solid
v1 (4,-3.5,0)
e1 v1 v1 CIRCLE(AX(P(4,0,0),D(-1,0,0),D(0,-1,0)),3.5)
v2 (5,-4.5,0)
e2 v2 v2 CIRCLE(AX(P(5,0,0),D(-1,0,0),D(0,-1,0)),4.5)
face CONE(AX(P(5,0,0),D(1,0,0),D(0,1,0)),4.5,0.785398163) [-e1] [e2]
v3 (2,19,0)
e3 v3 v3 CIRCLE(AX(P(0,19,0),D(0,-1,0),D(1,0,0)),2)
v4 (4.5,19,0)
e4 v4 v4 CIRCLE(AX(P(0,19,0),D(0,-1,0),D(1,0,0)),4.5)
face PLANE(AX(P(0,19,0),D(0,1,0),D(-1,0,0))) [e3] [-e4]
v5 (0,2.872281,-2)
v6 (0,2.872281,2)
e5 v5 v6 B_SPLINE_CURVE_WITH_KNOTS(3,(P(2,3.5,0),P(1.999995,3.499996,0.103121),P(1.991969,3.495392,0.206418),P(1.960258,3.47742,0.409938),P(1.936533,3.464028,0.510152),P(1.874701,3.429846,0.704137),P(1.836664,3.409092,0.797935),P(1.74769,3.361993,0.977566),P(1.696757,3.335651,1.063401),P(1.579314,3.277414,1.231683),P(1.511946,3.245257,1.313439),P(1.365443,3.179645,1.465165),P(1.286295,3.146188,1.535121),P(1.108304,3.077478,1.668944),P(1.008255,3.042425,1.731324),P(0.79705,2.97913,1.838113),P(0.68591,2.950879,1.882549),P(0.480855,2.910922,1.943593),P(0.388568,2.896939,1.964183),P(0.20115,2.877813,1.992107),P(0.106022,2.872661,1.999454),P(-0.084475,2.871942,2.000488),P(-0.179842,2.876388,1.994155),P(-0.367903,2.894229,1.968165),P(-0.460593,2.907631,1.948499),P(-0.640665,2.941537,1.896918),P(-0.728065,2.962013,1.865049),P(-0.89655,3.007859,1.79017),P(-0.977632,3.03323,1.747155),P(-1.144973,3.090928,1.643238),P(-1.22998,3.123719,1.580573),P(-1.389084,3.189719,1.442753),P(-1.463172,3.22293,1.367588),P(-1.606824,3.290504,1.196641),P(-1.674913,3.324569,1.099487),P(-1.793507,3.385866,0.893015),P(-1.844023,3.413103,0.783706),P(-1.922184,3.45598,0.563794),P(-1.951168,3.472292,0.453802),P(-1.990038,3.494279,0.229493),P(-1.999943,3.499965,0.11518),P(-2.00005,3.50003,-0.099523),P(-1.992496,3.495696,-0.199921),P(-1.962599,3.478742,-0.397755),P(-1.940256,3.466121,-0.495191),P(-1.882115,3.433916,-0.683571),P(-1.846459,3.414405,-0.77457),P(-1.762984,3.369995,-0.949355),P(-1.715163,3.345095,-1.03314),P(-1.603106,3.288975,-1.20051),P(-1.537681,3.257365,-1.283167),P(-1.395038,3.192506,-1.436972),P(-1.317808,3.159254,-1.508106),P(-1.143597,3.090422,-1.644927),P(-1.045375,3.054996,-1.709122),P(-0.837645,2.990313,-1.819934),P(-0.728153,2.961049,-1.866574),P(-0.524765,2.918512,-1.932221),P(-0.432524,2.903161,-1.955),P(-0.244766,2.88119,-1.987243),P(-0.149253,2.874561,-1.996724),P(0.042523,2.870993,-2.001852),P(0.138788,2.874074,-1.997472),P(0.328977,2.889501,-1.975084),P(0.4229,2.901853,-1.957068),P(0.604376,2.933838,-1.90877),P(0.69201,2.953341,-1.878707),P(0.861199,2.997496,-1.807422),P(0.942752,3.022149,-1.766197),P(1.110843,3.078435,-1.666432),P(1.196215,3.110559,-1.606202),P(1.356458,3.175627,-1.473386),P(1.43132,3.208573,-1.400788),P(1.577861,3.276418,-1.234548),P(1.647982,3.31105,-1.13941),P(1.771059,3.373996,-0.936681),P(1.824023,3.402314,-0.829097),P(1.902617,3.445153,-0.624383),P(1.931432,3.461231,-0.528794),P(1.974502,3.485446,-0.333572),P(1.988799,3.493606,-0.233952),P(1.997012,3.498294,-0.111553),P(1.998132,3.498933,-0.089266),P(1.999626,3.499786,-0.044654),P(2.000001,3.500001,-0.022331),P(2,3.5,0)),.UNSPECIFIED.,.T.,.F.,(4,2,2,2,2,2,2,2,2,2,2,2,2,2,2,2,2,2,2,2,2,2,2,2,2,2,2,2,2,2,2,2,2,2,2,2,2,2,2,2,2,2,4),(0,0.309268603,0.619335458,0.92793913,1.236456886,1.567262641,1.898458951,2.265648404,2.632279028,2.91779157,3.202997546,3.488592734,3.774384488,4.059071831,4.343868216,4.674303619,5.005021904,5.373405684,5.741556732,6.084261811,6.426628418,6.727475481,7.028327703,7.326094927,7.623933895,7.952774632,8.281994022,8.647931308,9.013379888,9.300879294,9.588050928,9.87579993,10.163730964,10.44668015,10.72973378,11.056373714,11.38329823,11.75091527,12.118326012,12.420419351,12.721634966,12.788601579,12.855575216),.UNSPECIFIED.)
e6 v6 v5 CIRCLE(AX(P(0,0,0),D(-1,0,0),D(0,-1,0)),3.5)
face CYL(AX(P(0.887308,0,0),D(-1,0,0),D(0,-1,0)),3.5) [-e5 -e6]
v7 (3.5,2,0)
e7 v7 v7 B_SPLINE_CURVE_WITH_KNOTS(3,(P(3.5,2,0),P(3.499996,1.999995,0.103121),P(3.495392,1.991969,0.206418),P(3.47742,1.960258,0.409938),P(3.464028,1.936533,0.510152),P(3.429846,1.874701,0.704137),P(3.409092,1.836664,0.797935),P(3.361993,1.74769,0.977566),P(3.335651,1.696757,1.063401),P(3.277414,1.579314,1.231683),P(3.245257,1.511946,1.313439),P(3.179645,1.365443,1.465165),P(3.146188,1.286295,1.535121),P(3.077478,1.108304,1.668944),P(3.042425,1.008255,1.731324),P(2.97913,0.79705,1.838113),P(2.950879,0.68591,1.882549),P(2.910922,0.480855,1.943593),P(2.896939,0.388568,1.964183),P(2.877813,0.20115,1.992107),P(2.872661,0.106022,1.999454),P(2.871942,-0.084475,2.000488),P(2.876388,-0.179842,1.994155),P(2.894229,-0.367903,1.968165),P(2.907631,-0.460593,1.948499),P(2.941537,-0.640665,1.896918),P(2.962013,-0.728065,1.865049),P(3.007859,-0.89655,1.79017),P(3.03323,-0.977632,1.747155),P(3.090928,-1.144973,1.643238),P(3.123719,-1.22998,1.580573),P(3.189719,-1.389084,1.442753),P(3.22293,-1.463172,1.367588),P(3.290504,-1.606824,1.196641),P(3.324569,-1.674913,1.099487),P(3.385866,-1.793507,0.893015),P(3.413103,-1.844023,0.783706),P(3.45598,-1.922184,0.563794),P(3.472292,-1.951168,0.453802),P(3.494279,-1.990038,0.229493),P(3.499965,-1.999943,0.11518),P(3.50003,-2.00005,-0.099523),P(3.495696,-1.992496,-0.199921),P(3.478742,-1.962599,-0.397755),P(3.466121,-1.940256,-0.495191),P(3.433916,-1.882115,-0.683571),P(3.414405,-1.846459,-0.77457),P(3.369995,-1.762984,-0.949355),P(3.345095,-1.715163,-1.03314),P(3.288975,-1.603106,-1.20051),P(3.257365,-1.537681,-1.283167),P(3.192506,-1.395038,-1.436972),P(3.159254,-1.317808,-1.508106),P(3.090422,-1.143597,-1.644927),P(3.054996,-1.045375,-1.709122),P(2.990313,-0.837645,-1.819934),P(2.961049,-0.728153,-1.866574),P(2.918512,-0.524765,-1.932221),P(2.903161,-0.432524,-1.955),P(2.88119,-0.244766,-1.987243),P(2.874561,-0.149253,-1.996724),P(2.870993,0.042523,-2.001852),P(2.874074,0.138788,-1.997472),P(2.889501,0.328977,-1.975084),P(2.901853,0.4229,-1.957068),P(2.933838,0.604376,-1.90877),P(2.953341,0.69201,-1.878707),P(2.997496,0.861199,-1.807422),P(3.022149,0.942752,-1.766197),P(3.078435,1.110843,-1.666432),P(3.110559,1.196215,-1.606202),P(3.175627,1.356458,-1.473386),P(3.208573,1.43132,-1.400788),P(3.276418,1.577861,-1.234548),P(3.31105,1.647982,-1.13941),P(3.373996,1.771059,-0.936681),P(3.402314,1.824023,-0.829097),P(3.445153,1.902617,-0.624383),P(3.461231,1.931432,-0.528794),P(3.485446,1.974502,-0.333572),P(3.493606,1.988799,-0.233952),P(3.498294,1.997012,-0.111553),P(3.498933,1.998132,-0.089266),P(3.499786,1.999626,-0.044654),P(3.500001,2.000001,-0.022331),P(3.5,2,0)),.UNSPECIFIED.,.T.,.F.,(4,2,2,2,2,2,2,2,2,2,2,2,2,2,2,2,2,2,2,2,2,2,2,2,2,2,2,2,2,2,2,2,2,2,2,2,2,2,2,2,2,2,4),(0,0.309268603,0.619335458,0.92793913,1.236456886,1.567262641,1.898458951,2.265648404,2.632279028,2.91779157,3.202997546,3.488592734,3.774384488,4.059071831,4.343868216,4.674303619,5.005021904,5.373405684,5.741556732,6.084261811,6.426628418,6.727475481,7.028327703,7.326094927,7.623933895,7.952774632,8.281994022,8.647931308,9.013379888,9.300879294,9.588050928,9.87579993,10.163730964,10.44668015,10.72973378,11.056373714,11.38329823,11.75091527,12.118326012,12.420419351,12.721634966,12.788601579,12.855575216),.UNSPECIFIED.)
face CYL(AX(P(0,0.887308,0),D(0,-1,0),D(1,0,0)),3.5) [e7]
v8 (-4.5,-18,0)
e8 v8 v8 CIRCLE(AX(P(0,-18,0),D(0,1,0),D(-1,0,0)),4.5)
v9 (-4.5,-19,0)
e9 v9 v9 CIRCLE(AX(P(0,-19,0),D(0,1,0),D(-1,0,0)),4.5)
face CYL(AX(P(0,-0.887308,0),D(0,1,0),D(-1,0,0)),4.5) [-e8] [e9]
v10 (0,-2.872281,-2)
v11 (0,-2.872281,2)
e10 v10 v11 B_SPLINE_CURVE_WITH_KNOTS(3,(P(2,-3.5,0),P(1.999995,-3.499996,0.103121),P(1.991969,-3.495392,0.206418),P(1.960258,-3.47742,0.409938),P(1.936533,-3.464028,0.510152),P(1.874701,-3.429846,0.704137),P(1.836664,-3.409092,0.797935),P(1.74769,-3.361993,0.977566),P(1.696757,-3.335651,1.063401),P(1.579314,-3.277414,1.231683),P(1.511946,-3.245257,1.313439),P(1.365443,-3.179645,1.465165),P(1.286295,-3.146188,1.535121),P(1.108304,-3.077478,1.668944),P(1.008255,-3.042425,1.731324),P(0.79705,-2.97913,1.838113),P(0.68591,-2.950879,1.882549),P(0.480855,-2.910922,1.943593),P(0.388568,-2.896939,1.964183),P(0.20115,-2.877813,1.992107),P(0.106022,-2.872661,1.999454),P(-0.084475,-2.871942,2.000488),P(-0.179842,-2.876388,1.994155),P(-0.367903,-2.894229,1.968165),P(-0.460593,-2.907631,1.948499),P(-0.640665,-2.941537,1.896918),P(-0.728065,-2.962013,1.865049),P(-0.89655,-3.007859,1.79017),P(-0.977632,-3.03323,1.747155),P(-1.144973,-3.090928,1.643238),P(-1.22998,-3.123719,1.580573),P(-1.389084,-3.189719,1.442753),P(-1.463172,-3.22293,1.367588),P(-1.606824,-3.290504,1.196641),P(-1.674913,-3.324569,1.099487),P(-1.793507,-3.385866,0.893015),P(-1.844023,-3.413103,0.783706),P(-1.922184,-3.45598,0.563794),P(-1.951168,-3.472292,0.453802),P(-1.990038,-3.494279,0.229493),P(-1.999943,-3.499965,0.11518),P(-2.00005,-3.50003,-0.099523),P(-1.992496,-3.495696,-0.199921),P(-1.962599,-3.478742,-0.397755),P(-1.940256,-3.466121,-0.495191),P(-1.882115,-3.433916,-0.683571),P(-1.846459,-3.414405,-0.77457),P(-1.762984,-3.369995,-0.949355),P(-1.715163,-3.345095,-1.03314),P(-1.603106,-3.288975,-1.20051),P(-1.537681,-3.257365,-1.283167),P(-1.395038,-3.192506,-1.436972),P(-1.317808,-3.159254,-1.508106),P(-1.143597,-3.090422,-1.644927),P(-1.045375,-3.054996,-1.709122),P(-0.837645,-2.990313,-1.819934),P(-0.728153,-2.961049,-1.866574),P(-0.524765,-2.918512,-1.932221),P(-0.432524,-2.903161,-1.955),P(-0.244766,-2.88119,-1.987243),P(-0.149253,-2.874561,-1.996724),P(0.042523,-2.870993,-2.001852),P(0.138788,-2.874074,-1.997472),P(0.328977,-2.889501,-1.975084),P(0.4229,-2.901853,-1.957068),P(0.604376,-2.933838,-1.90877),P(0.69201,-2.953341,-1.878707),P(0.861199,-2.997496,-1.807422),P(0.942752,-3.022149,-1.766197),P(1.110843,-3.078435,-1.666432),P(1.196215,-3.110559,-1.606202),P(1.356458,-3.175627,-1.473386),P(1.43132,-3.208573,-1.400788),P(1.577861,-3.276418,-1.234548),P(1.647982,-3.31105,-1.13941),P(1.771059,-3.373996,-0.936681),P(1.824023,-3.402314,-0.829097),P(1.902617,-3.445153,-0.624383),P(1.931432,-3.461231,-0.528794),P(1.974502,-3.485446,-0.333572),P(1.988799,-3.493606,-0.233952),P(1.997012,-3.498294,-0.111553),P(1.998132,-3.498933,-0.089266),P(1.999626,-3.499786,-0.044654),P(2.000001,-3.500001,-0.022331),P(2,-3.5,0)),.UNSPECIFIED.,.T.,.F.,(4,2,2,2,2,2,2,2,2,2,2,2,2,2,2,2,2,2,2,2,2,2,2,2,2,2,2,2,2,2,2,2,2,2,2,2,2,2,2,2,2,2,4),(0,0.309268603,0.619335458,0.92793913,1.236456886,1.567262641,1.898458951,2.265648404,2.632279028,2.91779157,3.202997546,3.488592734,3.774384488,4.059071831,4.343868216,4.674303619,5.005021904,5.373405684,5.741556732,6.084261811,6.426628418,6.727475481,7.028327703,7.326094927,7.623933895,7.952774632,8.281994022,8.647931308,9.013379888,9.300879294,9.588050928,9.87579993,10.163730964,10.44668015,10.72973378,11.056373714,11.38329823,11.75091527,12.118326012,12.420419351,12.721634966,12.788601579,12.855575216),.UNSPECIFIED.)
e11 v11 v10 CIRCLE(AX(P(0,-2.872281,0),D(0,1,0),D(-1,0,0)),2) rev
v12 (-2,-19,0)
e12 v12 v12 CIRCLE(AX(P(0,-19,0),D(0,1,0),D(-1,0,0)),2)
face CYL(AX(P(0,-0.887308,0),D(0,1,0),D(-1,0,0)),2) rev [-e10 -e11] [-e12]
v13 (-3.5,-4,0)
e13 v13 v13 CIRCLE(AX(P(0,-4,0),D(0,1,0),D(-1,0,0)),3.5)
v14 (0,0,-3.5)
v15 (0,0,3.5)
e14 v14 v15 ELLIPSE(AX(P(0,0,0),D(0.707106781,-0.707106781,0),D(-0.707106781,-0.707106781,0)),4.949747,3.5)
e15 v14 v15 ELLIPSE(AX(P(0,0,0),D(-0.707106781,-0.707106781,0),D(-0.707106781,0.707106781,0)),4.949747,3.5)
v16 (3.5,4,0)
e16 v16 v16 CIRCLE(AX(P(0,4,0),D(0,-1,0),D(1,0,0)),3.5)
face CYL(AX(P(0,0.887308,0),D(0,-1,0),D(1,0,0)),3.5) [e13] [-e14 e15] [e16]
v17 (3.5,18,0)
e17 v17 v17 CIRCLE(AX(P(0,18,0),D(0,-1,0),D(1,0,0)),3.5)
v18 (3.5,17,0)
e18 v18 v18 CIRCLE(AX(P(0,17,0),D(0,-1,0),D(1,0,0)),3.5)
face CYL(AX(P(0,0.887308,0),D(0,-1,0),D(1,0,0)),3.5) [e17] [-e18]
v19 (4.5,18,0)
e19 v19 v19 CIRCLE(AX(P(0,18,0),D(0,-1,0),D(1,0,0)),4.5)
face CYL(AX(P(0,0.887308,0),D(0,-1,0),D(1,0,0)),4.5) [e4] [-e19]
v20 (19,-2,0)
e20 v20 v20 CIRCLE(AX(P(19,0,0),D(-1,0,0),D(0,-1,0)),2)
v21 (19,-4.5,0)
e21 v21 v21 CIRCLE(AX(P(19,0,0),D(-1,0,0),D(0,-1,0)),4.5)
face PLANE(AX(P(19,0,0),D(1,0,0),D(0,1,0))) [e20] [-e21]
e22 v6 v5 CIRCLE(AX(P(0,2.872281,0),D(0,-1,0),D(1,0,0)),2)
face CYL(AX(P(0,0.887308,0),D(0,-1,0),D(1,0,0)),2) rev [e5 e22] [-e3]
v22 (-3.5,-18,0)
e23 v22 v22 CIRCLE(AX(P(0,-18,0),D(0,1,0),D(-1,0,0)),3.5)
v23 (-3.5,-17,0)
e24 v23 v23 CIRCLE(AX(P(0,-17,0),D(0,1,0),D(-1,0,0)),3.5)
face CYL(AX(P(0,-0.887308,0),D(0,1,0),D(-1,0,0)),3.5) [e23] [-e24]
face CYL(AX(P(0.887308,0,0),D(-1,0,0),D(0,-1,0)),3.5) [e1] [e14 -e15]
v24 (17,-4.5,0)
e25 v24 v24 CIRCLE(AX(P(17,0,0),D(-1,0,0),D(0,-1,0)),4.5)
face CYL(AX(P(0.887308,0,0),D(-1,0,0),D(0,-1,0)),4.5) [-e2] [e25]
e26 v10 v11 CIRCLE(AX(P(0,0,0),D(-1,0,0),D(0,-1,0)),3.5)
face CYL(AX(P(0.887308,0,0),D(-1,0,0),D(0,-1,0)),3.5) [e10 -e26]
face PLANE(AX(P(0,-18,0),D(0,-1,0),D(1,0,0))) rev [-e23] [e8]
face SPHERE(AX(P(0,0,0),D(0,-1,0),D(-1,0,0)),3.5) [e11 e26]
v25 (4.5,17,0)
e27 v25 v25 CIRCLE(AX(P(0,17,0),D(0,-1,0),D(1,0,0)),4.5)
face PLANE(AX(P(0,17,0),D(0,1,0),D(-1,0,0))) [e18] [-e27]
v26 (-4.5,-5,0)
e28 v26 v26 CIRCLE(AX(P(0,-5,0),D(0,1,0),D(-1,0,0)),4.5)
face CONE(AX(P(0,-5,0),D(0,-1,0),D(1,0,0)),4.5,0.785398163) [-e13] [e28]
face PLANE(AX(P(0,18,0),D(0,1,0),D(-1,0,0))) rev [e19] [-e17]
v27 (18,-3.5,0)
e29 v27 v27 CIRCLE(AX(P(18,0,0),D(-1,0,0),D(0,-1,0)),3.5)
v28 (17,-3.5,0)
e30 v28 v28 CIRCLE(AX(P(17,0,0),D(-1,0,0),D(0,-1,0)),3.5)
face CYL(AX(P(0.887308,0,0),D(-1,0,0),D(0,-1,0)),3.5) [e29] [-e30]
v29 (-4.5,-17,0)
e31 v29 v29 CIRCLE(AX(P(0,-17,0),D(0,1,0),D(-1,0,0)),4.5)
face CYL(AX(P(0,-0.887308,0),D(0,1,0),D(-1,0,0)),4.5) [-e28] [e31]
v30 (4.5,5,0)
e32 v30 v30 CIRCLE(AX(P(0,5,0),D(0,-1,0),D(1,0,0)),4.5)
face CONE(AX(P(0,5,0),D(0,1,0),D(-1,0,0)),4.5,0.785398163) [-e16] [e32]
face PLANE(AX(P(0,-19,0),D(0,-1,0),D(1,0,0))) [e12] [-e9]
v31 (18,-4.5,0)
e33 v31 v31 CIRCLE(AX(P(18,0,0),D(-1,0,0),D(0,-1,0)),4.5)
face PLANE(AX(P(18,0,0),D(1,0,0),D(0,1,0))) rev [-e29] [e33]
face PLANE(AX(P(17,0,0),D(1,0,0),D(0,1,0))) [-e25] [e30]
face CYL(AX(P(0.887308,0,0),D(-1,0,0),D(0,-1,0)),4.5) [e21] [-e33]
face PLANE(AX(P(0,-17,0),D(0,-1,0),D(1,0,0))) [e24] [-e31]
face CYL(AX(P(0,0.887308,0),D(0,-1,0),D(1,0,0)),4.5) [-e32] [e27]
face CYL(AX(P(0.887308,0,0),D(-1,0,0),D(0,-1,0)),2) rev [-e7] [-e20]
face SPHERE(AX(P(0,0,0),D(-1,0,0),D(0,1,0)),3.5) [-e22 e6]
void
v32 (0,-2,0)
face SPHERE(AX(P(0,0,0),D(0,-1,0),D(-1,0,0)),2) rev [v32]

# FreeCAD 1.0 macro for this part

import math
import FreeCAD as App
import Part
import Sketcher

doc = App.newDocument("Part")
params = doc.addObject("Spreadsheet::Sheet", "Params")
for row, (alias, value) in enumerate([
    ("sketch1_radius", "2 mm"),
    ("sketch1_radius2", "3.5 mm"),
    ("sketch1_width", "1 mm"),
    ("sketch1_height", "19 mm"),
    ("sketch1_height2", "12 mm"),
    ("revolution_angle", "360 deg"),
], start=1):
    params.set(f"A{row}", alias)
    params.set(f"B{row}", "=" + value)
    params.setAlias(f"B{row}", alias)

body = doc.addObject("PartDesign::Body", "Body")

# Sketch on XY plane
sketch1 = doc.addObject("Sketcher::SketchObject", "Sketch")
body.addObject(sketch1)
sketch1.AttachmentSupport = (doc.XY_Plane, [""])
sketch1.MapMode = "FlatFace"
sketch1.addGeometry(Part.LineSegment(App.Vector(0, -3.5, 0), App.Vector(0, -2, 0)), False)
sketch1.addGeometry(Part.ArcOfCircle(Part.Circle(App.Vector(0, 0, 0), App.Vector(0, 0, 1), 2), math.radians(-180), math.radians(-90)), False)
sketch1.addGeometry(Part.LineSegment(App.Vector(-2, 0, 0), App.Vector(-2, 19, 0)), False)
sketch1.addGeometry(Part.LineSegment(App.Vector(-2, 19, 0), App.Vector(-4.5, 19, 0)), False)
sketch1.addGeometry(Part.LineSegment(App.Vector(-4.5, 19, 0), App.Vector(-4.5, 18, 0)), False)
sketch1.addGeometry(Part.LineSegment(App.Vector(-4.5, 18, 0), App.Vector(-3.5, 18, 0)), False)
sketch1.addGeometry(Part.LineSegment(App.Vector(-3.5, 18, 0), App.Vector(-3.5, 17, 0)), False)
sketch1.addGeometry(Part.LineSegment(App.Vector(-3.5, 17, 0), App.Vector(-4.5, 17, 0)), False)
sketch1.addGeometry(Part.LineSegment(App.Vector(-4.5, 17, 0), App.Vector(-4.5, 5, 0)), False)
sketch1.addGeometry(Part.LineSegment(App.Vector(-4.5, 5, 0), App.Vector(-3.5, 4, 0)), False)
sketch1.addGeometry(Part.LineSegment(App.Vector(-3.5, 4, 0), App.Vector(-3.5, 0, 0)), False)
sketch1.addGeometry(Part.ArcOfCircle(Part.Circle(App.Vector(0, 0, 0), App.Vector(0, 0, 1), 3.5), math.radians(-180), math.radians(-90)), False)
sketch1.addConstraint(Sketcher.Constraint("Coincident", 0, 2, 1, 2))
sketch1.addConstraint(Sketcher.Constraint("Tangent", 1, 1, 2, 1))
sketch1.addConstraint(Sketcher.Constraint("Coincident", 2, 2, 3, 1))
sketch1.addConstraint(Sketcher.Constraint("Coincident", 3, 2, 4, 1))
sketch1.addConstraint(Sketcher.Constraint("Coincident", 4, 2, 5, 1))
sketch1.addConstraint(Sketcher.Constraint("Coincident", 5, 2, 6, 1))
sketch1.addConstraint(Sketcher.Constraint("Coincident", 6, 2, 7, 1))
sketch1.addConstraint(Sketcher.Constraint("Coincident", 7, 2, 8, 1))
sketch1.addConstraint(Sketcher.Constraint("Coincident", 8, 2, 9, 1))
sketch1.addConstraint(Sketcher.Constraint("Coincident", 9, 2, 10, 1))
sketch1.addConstraint(Sketcher.Constraint("Tangent", 10, 2, 11, 1))
sketch1.addConstraint(Sketcher.Constraint("Coincident", 11, 2, 0, 1))
sketch1.addConstraint(Sketcher.Constraint("Vertical", 0))
sketch1.addConstraint(Sketcher.Constraint("Vertical", 2))
sketch1.addConstraint(Sketcher.Constraint("Horizontal", 3))
sketch1.addConstraint(Sketcher.Constraint("Vertical", 4))
sketch1.addConstraint(Sketcher.Constraint("Horizontal", 5))
sketch1.addConstraint(Sketcher.Constraint("Vertical", 6))
sketch1.addConstraint(Sketcher.Constraint("Horizontal", 7))
sketch1.addConstraint(Sketcher.Constraint("Vertical", 8))
sketch1.addConstraint(Sketcher.Constraint("Vertical", 10))
sketch1.addConstraint(Sketcher.Constraint("Coincident", 1, 3, -1, 1))
sketch1.addConstraint(Sketcher.Constraint("Coincident", 11, 3, -1, 1))
sketch1.addConstraint(Sketcher.Constraint("PointOnObject", 0, 2, -2))
sketch1.addConstraint(Sketcher.Constraint("Vertical", 4, 2, 7, 2))
sketch1.addConstraint(Sketcher.Constraint("Vertical", 6, 2, 9, 2))
sketch1.addConstraint(Sketcher.Constraint("Equal", 7, 4))
sketch1.addConstraint(Sketcher.Constraint("Equal", 4, 6))
sketch1.addConstraint(Sketcher.Constraint("Radius", 1, 2.0))
sketch1.addConstraint(Sketcher.Constraint("Radius", 11, 3.5))
sketch1.addConstraint(Sketcher.Constraint("DistanceX", 5, 1, 5, 2, 1.0))
sketch1.addConstraint(Sketcher.Constraint("DistanceY", 2, 1, 2, 2, 19.0))
sketch1.addConstraint(Sketcher.Constraint("DistanceY", 8, 2, 8, 1, 12.0))
sketch1.addConstraint(Sketcher.Constraint("DistanceY", 10, 2, 10, 1, 4.0))
sketch1.setExpression("Constraints[28]", "Params.sketch1_radius")
sketch1.setExpression("Constraints[29]", "Params.sketch1_radius2")
sketch1.setExpression("Constraints[30]", "Params.sketch1_width")
sketch1.setExpression("Constraints[31]", "Params.sketch1_height")
sketch1.setExpression("Constraints[32]", "Params.sketch1_height2")
revolution = doc.addObject("PartDesign::Revolution", "Revolution")
body.addObject(revolution)
revolution.Profile = sketch1
revolution.ReferenceAxis = (sketch1, ["V_Axis"])
revolution.setExpression("Angle", "Params.revolution_angle")
doc.recompute()

polarpattern = doc.addObject("PartDesign::PolarPattern", "PolarPattern")
body.addObject(polarpattern)
polarpattern.Originals = [revolution]
polarpattern.Axis = (doc.Z_Axis, [""])
polarpattern.Angle = 180
polarpattern.Occurrences = 3
polarpattern.Reversed = True
body.Tip = polarpattern

doc.recompute()
